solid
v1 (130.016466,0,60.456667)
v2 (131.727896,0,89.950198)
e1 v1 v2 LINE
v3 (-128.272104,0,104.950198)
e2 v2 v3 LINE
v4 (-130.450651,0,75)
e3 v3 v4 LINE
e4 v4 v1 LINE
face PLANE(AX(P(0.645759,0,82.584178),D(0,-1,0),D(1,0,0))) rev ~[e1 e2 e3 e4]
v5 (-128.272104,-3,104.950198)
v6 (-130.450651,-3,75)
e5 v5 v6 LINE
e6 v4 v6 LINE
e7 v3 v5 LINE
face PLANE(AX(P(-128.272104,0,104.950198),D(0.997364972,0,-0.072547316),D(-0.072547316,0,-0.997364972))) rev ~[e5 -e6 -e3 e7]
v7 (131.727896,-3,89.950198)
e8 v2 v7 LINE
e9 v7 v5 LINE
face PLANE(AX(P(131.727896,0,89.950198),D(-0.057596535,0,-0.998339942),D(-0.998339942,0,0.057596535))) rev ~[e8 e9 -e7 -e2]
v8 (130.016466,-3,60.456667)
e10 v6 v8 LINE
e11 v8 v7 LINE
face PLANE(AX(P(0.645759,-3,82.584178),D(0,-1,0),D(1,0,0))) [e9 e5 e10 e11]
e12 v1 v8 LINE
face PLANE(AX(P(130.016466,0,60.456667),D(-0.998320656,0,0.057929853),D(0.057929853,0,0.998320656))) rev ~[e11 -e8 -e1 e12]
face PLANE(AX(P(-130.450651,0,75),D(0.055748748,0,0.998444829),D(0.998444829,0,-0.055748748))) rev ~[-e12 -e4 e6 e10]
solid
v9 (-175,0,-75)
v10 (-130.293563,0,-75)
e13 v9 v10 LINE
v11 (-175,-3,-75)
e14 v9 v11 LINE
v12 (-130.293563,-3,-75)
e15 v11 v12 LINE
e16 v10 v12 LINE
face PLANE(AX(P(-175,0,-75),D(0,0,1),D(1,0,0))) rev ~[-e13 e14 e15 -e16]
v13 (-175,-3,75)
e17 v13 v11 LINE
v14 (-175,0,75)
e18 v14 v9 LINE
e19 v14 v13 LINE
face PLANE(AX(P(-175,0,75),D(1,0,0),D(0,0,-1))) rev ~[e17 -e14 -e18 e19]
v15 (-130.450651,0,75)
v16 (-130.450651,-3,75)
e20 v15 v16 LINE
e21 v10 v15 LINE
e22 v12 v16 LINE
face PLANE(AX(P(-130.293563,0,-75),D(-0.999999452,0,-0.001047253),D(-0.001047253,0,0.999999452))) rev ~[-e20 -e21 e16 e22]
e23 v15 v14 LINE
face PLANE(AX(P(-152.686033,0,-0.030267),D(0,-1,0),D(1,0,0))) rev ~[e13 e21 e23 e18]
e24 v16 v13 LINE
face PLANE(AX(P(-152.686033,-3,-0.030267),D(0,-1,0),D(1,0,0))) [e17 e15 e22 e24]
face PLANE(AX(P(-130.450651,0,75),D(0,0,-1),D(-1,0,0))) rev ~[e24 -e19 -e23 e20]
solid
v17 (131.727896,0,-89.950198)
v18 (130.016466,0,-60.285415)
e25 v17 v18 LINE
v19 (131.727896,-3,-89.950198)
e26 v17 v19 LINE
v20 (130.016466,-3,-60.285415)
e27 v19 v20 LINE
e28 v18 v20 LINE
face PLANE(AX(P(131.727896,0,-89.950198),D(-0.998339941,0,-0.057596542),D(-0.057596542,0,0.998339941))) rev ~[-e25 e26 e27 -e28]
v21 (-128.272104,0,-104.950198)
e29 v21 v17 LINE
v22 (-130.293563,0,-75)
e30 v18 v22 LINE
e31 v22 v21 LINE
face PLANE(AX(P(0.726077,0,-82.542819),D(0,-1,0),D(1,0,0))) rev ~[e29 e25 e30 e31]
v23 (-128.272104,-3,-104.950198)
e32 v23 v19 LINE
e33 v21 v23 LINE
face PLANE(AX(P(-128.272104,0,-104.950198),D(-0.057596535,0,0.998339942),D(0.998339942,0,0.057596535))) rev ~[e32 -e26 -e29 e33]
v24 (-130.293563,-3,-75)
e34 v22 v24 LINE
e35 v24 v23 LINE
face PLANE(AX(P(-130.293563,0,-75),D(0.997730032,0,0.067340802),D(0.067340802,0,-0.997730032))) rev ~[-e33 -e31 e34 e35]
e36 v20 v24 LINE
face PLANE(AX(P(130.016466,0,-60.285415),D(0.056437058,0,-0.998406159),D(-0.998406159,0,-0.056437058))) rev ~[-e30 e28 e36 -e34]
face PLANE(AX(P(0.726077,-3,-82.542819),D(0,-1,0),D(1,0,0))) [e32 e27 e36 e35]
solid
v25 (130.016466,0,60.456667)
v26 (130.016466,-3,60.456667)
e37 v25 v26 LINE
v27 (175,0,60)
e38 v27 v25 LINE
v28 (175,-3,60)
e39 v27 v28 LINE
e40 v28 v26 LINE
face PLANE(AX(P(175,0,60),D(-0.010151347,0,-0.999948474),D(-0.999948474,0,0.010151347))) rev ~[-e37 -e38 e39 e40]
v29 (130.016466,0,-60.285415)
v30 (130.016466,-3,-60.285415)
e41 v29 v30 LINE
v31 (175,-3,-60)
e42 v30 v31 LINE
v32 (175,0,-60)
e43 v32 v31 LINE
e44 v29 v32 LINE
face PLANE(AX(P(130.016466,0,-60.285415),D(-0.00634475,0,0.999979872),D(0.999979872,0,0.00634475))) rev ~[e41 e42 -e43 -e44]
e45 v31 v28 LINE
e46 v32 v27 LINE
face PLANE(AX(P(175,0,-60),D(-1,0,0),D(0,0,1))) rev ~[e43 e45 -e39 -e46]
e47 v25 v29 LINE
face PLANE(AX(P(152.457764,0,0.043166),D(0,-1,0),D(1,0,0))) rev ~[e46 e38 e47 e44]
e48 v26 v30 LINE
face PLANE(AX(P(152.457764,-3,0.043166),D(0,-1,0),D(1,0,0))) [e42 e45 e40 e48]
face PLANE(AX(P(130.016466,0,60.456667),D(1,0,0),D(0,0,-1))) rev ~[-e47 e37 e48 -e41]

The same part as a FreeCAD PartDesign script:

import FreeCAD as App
import Part
import Sketcher

V = App.Vector
Q = App.Units.Quantity

doc = App.newDocument("Part")
body = doc.addObject("PartDesign::Body", "Body")
body.AllowCompound = True

# Sketch on XZ plane
sketch1 = body.newObject("Sketcher::SketchObject", "Sketch")
sketch1.AttachmentSupport = (doc.getObject("XZ_Plane"), [""])
sketch1.MapMode = "FlatFace"
sketch1.addGeometry(Part.LineSegment(V(130, 60, 0), V(132, 90, 0)), False)
sketch1.addGeometry(Part.LineSegment(V(132, 90, 0), V(-128, 105, 0)), False)
sketch1.addGeometry(Part.LineSegment(V(-128, 105, 0), V(-130, 75, 0)), False)
sketch1.addGeometry(Part.LineSegment(V(-130, 75, 0), V(130, 60, 0)), False)
sketch1.addGeometry(Part.LineSegment(V(-130, -75, 0), V(-130, 75, 0)), False)
sketch1.addGeometry(Part.LineSegment(V(-130, 75, 0), V(-175, 75, 0)), False)
sketch1.addGeometry(Part.LineSegment(V(-175, 75, 0), V(-175, -75, 0)), False)
sketch1.addGeometry(Part.LineSegment(V(-175, -75, 0), V(-130, -75, 0)), False)
sketch1.addGeometry(Part.LineSegment(V(132, -90, 0), V(130, -60, 0)), False)
sketch1.addGeometry(Part.LineSegment(V(130, -60, 0), V(-130, -75, 0)), False)
sketch1.addGeometry(Part.LineSegment(V(-130, -75, 0), V(-128, -105, 0)), False)
sketch1.addGeometry(Part.LineSegment(V(-128, -105, 0), V(132, -90, 0)), False)
sketch1.addGeometry(Part.LineSegment(V(175, 60, 0), V(130, 60, 0)), False)
sketch1.addGeometry(Part.LineSegment(V(130, 60, 0), V(130, -60, 0)), False)
sketch1.addGeometry(Part.LineSegment(V(130, -60, 0), V(175, -60, 0)), False)
sketch1.addGeometry(Part.LineSegment(V(175, -60, 0), V(175, 60, 0)), False)
sketch1.addConstraint(Sketcher.Constraint("Coincident", 0, 2, 1, 1))
sketch1.addConstraint(Sketcher.Constraint("Coincident", 1, 2, 2, 1))
sketch1.addConstraint(Sketcher.Constraint("Coincident", 2, 2, 3, 1))
sketch1.addConstraint(Sketcher.Constraint("Coincident", 3, 2, 0, 1))
sketch1.addConstraint(Sketcher.Constraint("Coincident", 4, 2, 5, 1))
sketch1.addConstraint(Sketcher.Constraint("Coincident", 5, 2, 6, 1))
sketch1.addConstraint(Sketcher.Constraint("Coincident", 6, 2, 7, 1))
sketch1.addConstraint(Sketcher.Constraint("Coincident", 7, 2, 4, 1))
sketch1.addConstraint(Sketcher.Constraint("Coincident", 8, 2, 9, 1))
sketch1.addConstraint(Sketcher.Constraint("Coincident", 9, 2, 10, 1))
sketch1.addConstraint(Sketcher.Constraint("Coincident", 10, 2, 11, 1))
sketch1.addConstraint(Sketcher.Constraint("Coincident", 11, 2, 8, 1))
sketch1.addConstraint(Sketcher.Constraint("Coincident", 12, 2, 13, 1))
sketch1.addConstraint(Sketcher.Constraint("Coincident", 13, 2, 14, 1))
sketch1.addConstraint(Sketcher.Constraint("Coincident", 14, 2, 15, 1))
sketch1.addConstraint(Sketcher.Constraint("Coincident", 15, 2, 12, 1))
sketch1.addConstraint(Sketcher.Constraint("Horizontal", 5))
sketch1.addConstraint(Sketcher.Constraint("Vertical", 6))
sketch1.addConstraint(Sketcher.Constraint("Horizontal", 7))
sketch1.addConstraint(Sketcher.Constraint("Vertical", 13))
sketch1.addConstraint(Sketcher.Constraint("Vertical", 15))
sketch1.addConstraint(Sketcher.Constraint("Coincident", 4, 2, 2, 2))
sketch1.addConstraint(Sketcher.Constraint("Coincident", 9, 2, 7, 2))
sketch1.addConstraint(Sketcher.Constraint("Coincident", 12, 2, 3, 2))
sketch1.addConstraint(Sketcher.Constraint("Coincident", 13, 2, 8, 2))
sketch1.addConstraint(Sketcher.Constraint("Symmetric", 1, 2, 10, 2, -1))
sketch1.addConstraint(Sketcher.Constraint("Symmetric", 0, 2, 11, 2, -1))
sketch1.addConstraint(Sketcher.Constraint("Perpendicular", 8, 11))
sketch1.addConstraint(Sketcher.Constraint("DistanceY", 6, 2, 6, 1, 150.0))
sketch1.addConstraint(Sketcher.Constraint("DistanceY", 15, 1, 15, 2, 120.0))
sketch1.addConstraint(Sketcher.Constraint("DistanceY", -1, 1, 2, 2, 75.0))
sketch1.addConstraint(Sketcher.Constraint("DistanceX", 5, 2, -1, 1, 175.0))
sketch1.addConstraint(Sketcher.Constraint("DistanceX", -1, 1, 14, 2, 175.0))
sketch1.addConstraint(Sketcher.Constraint("DistanceY", 14, 2, -1, 1, 60.0))
sketch1.addConstraint(Sketcher.Constraint("DistanceX", 1, 2, 0, 2, 260.0))
sketch1.addConstraint(Sketcher.Constraint("DistanceY", 0, 2, 1, 2, 15.0))
sketch1.addConstraint(Sketcher.Constraint("Angle", 4, Q("90.060003 deg")))
sketch1.addConstraint(Sketcher.Constraint("DistanceX", 5, 2, 5, 1, 44.549349))
sketch1.addConstraint(Sketcher.Constraint("DistanceY", -1, 1, 0, 2, 89.950198))
sketch1.addConstraint(Sketcher.Constraint("Distance", 3, 260.872819))
sketch1.addConstraint(Sketcher.Constraint("Distance", 8, 29.71411))
sketch1.addConstraint(Sketcher.Constraint("Distance", 12, 44.985852))
pad1 = body.newObject("PartDesign::Pad", "Pad")
pad1.Profile = sketch1
pad1.Length = 3

doc.recompute()
